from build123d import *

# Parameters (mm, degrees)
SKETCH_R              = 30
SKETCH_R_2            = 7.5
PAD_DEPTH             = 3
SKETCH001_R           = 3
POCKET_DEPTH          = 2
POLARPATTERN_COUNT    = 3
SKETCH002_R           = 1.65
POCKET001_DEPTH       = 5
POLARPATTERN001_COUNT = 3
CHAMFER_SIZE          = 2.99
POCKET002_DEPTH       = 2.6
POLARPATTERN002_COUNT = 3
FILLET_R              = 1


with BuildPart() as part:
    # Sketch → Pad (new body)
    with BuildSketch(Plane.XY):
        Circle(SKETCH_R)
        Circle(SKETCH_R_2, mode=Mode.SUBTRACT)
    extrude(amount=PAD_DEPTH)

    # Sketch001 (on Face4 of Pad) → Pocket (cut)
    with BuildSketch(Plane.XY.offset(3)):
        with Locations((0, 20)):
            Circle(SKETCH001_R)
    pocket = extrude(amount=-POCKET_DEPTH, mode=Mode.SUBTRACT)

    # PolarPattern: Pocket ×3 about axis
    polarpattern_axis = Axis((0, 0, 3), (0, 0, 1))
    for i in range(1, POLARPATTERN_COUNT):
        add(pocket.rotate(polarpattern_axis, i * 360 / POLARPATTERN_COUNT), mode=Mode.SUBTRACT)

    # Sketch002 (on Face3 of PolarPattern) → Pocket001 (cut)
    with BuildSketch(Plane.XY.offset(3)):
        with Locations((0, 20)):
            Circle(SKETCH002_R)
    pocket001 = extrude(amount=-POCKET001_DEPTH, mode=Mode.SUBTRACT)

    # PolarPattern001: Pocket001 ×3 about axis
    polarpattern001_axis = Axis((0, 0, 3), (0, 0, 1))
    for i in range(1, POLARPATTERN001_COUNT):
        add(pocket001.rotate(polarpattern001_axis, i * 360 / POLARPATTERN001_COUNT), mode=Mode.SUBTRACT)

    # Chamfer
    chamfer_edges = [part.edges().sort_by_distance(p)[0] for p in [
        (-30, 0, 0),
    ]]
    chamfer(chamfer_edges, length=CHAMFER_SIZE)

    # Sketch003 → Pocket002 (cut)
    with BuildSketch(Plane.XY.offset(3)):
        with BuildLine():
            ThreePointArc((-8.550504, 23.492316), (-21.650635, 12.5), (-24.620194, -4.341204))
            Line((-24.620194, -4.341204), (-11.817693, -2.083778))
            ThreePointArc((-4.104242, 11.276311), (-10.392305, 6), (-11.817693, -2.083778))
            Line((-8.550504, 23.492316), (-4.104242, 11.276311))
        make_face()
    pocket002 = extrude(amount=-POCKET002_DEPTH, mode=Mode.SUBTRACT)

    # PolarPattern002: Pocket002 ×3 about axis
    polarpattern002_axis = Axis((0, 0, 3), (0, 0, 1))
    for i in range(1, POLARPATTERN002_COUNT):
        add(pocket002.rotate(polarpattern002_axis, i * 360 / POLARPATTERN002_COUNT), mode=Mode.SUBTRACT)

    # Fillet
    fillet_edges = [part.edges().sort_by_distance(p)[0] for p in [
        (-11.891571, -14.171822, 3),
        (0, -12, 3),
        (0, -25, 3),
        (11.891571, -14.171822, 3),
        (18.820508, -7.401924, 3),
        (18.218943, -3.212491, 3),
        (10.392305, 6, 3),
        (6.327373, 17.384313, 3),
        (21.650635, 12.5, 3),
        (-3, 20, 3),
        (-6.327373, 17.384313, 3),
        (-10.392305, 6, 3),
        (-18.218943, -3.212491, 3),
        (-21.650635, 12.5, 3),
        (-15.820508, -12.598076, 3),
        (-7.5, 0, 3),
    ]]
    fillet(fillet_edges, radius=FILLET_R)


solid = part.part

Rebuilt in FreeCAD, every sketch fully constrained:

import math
import FreeCAD as App
import Part
import Sketcher
from FreeCAD import Vector
Q = App.Units.Quantity


def edges_at(feature, points):
    """Names of the edges that pass closest to the given points."""
    edges = feature.Shape.Edges
    near = lambda p: min(range(len(edges)), key=lambda i: edges[i].distToShape(Part.Vertex(*p))[0])
    return sorted({f"Edge{near(p) + 1}" for p in points})

doc = App.newDocument("Part")
body = doc.addObject("PartDesign::Body", "Body")

# Sketch on XY plane
sketch1 = body.newObject("Sketcher::SketchObject", "Sketch")
sketch1.AttachmentSupport = (doc.getObject("XY_Plane"), [""])
sketch1.MapMode = "FlatFace"
sketch1.addGeometry(Part.Circle(Vector(0, 0, 0), Vector(0, 0, 1), 30), False)
sketch1.addGeometry(Part.Circle(Vector(0, 0, 0), Vector(0, 0, 1), 8), False)
sketch1.addConstraint(Sketcher.Constraint("Coincident", 0, 3, -1, 1))
sketch1.addConstraint(Sketcher.Constraint("Coincident", 1, 3, -1, 1))
sketch1.addConstraint(Sketcher.Constraint("Diameter", 0, Q("60 mm")))
sketch1.addConstraint(Sketcher.Constraint("Diameter", 1, Q("15 mm")))
pad1 = body.newObject("PartDesign::Pad", "Pad")
pad1.Profile = sketch1
pad1.Length = 3

# Sketch on XY plane
sketch2 = body.newObject("Sketcher::SketchObject", "Sketch001")
sketch2.AttachmentSupport = (doc.getObject("XY_Plane"), [""])
sketch2.MapMode = "FlatFace"
sketch2.AttachmentOffset = App.Placement(Vector(0, 0, 3), App.Rotation())
sketch2.addGeometry(Part.Circle(Vector(0, 20, 0), Vector(0, 0, 1), 3), False)
sketch2.addConstraint(Sketcher.Constraint("PointOnObject", 0, 3, -2))
sketch2.addConstraint(Sketcher.Constraint("Diameter", 0, Q("6 mm")))
sketch2.addConstraint(Sketcher.Constraint("DistanceY", -1, 1, 0, 3, Q("20 mm")))
pocket1 = body.newObject("PartDesign::Pocket", "Pocket")
pocket1.Profile = sketch2
pocket1.Length = 2
doc.recompute()

polarpattern = body.newObject("PartDesign::PolarPattern", "PolarPattern")
polarpattern.Originals = [pocket1]
polarpattern.Axis = (doc.getObject("Z_Axis"), [""])
polarpattern.Angle = 360
polarpattern.Occurrences = 3
body.Tip = polarpattern

# Sketch on XY plane
sketch3 = body.newObject("Sketcher::SketchObject", "Sketch002")
sketch3.AttachmentSupport = (doc.getObject("XY_Plane"), [""])
sketch3.MapMode = "FlatFace"
sketch3.AttachmentOffset = App.Placement(Vector(0, 0, 3), App.Rotation())
sketch3.addGeometry(Part.Circle(Vector(0, 20, 0), Vector(0, 0, 1), 1.6), False)
sketch3.addConstraint(Sketcher.Constraint("PointOnObject", 0, 3, -2))
sketch3.addConstraint(Sketcher.Constraint("Diameter", 0, Q("3.3 mm")))
sketch3.addConstraint(Sketcher.Constraint("DistanceY", -1, 1, 0, 3, Q("20 mm")))
pocket2 = body.newObject("PartDesign::Pocket", "Pocket001")
pocket2.Profile = sketch3
pocket2.Length = 5
doc.recompute()

polarpattern2 = body.newObject("PartDesign::PolarPattern", "PolarPattern001")
polarpattern2.Originals = [pocket2]
polarpattern2.Axis = (doc.getObject("Z_Axis"), [""])
polarpattern2.Angle = 360
polarpattern2.Occurrences = 3
body.Tip = polarpattern2
doc.recompute()

chamfer = body.newObject("PartDesign::Chamfer", "Chamfer")
chamfer.Base = (polarpattern2, edges_at(polarpattern2, [(-30, 0, 0)]))
chamfer.Size = 2.99

# Sketch on XY plane
sketch4 = body.newObject("Sketcher::SketchObject", "Sketch003")
sketch4.AttachmentSupport = (doc.getObject("XY_Plane"), [""])
sketch4.MapMode = "FlatFace"
sketch4.AttachmentOffset = App.Placement(Vector(0, 0, 3), App.Rotation())
sketch4.addGeometry(Part.ArcOfCircle(Part.Circle(Vector(0, 0, 0), Vector(0, 0, 1), 25), math.radians(110), math.radians(190)), False)
sketch4.addGeometry(Part.LineSegment(Vector(-25, -4, 0), Vector(-12, -2, 0)), False)
sketch4.addGeometry(Part.ArcOfCircle(Part.Circle(Vector(0, 0, 0), Vector(0, 0, 1), 12), math.radians(110), math.radians(190)), False)
sketch4.addGeometry(Part.LineSegment(Vector(-4, 11, 0), Vector(-9, 23, 0)), False)
sketch4.addConstraint(Sketcher.Constraint("Coincident", 0, 2, 1, 1))
sketch4.addConstraint(Sketcher.Constraint("Coincident", 1, 2, 2, 2))
sketch4.addConstraint(Sketcher.Constraint("Coincident", 2, 1, 3, 1))
sketch4.addConstraint(Sketcher.Constraint("Coincident", 3, 2, 0, 1))
sketch4.addConstraint(Sketcher.Constraint("Coincident", 0, 3, -1, 1))
sketch4.addConstraint(Sketcher.Constraint("Coincident", 2, 3, -1, 1))
sketch4.addConstraint(Sketcher.Constraint("Radius", 0, Q("25.000002 mm")))
sketch4.addConstraint(Sketcher.Constraint("Radius", 2, Q("11.999999 mm")))
sketch4.addConstraint(Sketcher.Constraint("Angle", 1, Q("9.999998 deg")))
sketch4.addConstraint(Sketcher.Constraint("Angle", 3, Q("109.999999 deg")))
sketch4.addConstraint(Sketcher.Constraint("DistanceY", 1, 2, -1, 1, Q("2.083778 mm")))
sketch4.addConstraint(Sketcher.Constraint("DistanceY", -1, 1, 2, 1, Q("11.276311 mm")))
pocket3 = body.newObject("PartDesign::Pocket", "Pocket002")
pocket3.Profile = sketch4
pocket3.Length = 2.6
doc.recompute()

polarpattern3 = body.newObject("PartDesign::PolarPattern", "PolarPattern002")
polarpattern3.Originals = [pocket3]
polarpattern3.Axis = (doc.getObject("Z_Axis"), [""])
polarpattern3.Angle = 360
polarpattern3.Occurrences = 3
body.Tip = polarpattern3
doc.recompute()

fillet = body.newObject("PartDesign::Fillet", "Fillet")
fillet.Base = (polarpattern3, edges_at(polarpattern3, [
    (-11.892, -14.172, 3),
    (0, -12, 3),
    (0, -25, 3),
    (11.892, -14.172, 3),
    (18.821, -7.402, 3),
    (18.219, -3.212, 3),
    (10.392, 6, 3),
    (6.327, 17.384, 3),
    (21.651, 12.5, 3),
    (-3, 20, 3),
    (-6.327, 17.384, 3),
    (-10.392, 6, 3),
    (-18.219, -3.212, 3),
    (-21.651, 12.5, 3),
    (-15.821, -12.598, 3),
    (-7.5, 0, 3),
]))
fillet.Radius = 1

doc.recompute()
